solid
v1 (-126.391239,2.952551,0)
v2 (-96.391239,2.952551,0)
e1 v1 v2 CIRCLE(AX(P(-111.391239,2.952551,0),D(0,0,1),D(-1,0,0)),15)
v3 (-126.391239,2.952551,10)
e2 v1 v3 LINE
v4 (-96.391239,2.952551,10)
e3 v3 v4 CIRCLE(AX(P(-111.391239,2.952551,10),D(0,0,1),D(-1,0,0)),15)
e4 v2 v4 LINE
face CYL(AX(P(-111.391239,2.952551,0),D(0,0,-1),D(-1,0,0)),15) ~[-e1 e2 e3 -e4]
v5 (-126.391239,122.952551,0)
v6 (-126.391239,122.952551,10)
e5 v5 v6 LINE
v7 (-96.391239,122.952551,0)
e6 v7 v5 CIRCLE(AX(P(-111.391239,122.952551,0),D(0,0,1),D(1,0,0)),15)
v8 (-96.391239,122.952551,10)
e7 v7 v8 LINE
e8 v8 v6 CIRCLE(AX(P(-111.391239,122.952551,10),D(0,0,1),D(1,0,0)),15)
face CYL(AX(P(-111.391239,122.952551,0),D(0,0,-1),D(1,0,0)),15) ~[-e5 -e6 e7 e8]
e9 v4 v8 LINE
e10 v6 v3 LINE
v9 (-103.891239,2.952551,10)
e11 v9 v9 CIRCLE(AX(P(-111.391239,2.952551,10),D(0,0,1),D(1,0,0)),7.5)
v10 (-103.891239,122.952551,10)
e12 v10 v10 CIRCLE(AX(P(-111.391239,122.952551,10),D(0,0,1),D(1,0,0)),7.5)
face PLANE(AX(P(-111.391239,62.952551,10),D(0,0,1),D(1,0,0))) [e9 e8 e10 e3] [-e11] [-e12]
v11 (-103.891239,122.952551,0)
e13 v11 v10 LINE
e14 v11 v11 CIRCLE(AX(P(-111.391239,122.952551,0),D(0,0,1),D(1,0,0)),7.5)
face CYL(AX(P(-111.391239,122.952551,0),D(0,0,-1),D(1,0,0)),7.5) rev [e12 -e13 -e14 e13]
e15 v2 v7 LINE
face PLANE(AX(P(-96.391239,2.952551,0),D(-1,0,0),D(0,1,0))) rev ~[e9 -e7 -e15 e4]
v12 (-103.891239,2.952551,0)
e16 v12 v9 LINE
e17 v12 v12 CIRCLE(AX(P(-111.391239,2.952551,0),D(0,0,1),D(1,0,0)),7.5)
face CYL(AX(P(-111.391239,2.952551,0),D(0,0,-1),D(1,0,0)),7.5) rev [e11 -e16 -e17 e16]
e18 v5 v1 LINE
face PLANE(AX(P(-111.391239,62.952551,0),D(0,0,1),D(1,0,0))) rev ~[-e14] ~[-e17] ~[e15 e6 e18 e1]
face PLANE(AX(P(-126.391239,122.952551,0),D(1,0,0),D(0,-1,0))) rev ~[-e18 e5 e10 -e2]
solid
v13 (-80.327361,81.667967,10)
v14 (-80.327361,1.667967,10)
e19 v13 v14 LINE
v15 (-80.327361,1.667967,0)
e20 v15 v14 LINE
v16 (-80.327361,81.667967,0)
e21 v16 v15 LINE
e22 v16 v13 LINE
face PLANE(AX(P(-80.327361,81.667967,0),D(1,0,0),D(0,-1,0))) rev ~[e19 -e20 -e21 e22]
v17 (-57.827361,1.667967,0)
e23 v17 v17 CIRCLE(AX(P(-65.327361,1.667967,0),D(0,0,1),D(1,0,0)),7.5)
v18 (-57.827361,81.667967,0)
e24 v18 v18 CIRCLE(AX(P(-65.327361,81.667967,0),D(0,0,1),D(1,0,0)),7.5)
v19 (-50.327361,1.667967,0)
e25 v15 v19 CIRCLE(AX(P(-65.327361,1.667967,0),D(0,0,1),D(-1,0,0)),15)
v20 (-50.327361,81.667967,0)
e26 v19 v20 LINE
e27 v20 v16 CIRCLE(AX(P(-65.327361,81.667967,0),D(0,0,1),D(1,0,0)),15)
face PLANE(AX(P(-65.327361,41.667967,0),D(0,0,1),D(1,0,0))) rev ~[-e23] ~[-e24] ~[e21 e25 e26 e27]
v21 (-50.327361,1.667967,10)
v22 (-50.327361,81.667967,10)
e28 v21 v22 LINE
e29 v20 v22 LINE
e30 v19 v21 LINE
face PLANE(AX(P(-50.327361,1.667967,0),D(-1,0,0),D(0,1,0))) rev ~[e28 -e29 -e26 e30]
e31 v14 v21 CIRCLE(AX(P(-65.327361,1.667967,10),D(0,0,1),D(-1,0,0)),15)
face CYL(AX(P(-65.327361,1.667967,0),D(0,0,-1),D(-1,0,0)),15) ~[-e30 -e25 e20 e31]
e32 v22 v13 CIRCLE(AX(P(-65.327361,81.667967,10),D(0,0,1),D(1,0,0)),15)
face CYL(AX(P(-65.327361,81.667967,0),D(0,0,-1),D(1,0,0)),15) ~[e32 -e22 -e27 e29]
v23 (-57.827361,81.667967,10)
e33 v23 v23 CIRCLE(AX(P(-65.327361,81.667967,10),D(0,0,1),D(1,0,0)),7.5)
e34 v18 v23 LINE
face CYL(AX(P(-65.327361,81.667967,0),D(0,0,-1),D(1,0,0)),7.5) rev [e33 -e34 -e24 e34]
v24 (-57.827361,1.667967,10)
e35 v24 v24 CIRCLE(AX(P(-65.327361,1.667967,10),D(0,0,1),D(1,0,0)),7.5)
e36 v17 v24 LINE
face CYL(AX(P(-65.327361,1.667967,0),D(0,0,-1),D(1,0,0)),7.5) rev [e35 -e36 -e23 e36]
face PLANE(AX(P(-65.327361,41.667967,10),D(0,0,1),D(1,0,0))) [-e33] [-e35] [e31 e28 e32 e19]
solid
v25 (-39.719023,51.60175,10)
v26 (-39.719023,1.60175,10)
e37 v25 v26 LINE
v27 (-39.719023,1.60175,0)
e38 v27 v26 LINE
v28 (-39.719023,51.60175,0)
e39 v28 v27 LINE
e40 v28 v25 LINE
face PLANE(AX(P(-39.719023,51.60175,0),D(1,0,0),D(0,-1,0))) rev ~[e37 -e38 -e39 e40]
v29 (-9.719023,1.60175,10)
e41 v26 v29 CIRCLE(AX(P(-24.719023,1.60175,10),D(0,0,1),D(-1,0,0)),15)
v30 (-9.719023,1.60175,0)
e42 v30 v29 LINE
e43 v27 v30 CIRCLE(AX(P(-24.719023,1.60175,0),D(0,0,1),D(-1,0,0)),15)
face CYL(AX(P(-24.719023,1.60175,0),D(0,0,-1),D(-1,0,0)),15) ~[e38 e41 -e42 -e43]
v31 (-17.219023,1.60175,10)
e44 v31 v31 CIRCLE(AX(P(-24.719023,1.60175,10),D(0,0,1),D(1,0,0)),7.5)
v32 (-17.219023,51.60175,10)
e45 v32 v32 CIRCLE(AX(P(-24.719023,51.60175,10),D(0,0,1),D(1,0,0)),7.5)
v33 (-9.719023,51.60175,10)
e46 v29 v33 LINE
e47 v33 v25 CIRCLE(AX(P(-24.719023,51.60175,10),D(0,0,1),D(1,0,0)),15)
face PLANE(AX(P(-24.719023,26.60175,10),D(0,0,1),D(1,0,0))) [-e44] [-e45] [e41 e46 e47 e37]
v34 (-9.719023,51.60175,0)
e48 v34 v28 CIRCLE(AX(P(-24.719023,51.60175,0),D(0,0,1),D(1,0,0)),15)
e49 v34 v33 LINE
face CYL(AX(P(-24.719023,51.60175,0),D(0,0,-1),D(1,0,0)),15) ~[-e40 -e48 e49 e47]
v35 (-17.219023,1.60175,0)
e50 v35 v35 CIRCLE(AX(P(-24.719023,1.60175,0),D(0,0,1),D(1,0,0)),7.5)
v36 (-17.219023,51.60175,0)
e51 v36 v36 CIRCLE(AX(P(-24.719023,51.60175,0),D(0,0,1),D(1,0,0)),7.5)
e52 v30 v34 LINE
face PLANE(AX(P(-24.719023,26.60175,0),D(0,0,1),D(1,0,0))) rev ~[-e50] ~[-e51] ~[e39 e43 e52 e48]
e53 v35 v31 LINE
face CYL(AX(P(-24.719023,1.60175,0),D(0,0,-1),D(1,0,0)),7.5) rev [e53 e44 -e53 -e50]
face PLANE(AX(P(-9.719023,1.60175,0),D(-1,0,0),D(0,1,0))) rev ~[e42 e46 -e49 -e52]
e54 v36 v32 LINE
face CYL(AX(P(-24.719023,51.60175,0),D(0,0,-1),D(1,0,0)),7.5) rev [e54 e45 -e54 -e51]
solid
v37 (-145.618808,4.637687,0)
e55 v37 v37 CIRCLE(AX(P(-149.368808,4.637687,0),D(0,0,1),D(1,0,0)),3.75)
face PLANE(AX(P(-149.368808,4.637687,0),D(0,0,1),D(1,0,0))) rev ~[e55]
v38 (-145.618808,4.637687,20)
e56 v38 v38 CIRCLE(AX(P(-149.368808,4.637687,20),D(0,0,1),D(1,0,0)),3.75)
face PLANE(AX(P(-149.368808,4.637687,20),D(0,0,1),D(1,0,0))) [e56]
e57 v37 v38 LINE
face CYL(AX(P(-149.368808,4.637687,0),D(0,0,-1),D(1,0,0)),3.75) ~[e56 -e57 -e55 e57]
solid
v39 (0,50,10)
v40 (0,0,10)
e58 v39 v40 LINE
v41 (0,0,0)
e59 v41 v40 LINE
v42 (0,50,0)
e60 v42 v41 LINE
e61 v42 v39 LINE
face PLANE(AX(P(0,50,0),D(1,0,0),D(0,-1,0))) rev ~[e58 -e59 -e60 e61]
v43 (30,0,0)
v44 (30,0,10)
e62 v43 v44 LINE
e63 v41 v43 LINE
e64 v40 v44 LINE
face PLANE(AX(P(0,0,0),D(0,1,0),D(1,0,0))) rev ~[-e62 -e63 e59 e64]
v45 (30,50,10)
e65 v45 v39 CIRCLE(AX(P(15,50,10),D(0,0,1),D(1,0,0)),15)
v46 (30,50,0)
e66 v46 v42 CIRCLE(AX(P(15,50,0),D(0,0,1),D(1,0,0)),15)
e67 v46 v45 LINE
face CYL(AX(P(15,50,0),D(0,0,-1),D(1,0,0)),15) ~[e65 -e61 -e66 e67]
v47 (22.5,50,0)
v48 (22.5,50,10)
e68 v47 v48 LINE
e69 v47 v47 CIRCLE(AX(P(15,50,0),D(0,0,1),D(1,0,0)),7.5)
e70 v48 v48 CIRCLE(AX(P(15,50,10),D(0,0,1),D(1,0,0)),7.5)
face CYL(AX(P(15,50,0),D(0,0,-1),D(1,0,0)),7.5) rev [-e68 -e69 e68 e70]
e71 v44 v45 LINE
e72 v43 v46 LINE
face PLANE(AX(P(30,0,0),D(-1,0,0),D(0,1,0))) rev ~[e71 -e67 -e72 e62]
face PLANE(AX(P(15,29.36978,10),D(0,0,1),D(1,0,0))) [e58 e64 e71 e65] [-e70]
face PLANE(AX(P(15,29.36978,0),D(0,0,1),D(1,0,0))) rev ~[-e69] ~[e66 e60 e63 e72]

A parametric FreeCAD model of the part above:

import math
import FreeCAD as App
import Part
import Sketcher

doc = App.newDocument("Part")
body = doc.addObject("PartDesign::Body", "Body")

sketch1 = body.newObject("Sketcher::SketchObject", "Sketch")
sketch1.AttachmentSupport = (doc.getObject("XY_Plane"), [""])
sketch1.MapMode = "FlatFace"
sketch1.addGeometry([
    Part.LineSegment(App.Vector(0, 50, 0), App.Vector(0, 0, 0)),
    Part.LineSegment(App.Vector(0, 0, 0), App.Vector(30, 0, 0)),
    Part.LineSegment(App.Vector(30, 0, 0), App.Vector(30, 50, 0)),
    Part.ArcOfCircle(Part.Circle(App.Vector(15, 50, 0), App.Vector(0, 0, 1), 15), math.radians(0), math.radians(180)),
    Part.Circle(App.Vector(15, 50, 0), App.Vector(0, 0, 1), 7.5),
], False)
sketch1.addConstraint([
    Sketcher.Constraint("Coincident", 0, 2, 1, 1),
    Sketcher.Constraint("Coincident", 1, 2, 2, 1),
    Sketcher.Constraint("Tangent", 2, 2, 3, 1),
    Sketcher.Constraint("Tangent", 3, 2, 0, 1),
    Sketcher.Constraint("Vertical", 0),
    Sketcher.Constraint("Horizontal", 1),
    Sketcher.Constraint("Vertical", 2),
    Sketcher.Constraint("Coincident", 0, 2, -1, 1),
    Sketcher.Constraint("Coincident", 4, 3, 3, 3),
    Sketcher.Constraint("Diameter", 4, 15.0),
    Sketcher.Constraint("Radius", 3, 15.0),
    Sketcher.Constraint("DistanceY", 0, 2, 0, 1, 50.0),
])
pad1 = body.newObject("PartDesign::Pad", "Pad")
pad1.Profile = sketch1
pad1.Length = 10
body2 = doc.addObject("PartDesign::Body", "Body001")

sketch2 = body2.newObject("Sketcher::SketchObject", "Sketch001")
sketch2.AttachmentSupport = (doc.getObject("XY_Plane001"), [""])
sketch2.MapMode = "FlatFace"
sketch2.addGeometry([
    Part.LineSegment(App.Vector(-39.719023, 51.60175, 0), App.Vector(-39.719023, 1.60175, 0)),
    Part.ArcOfCircle(Part.Circle(App.Vector(-24.719023, 1.60175, 0), App.Vector(0, 0, 1), 15), math.radians(180), math.radians(360)),
    Part.LineSegment(App.Vector(-9.719023, 1.60175, 0), App.Vector(-9.719023, 51.60175, 0)),
    Part.ArcOfCircle(Part.Circle(App.Vector(-24.719023, 51.60175, 0), App.Vector(0, 0, 1), 15), math.radians(0), math.radians(180)),
    Part.Circle(App.Vector(-24.719023, 1.60175, 0), App.Vector(0, 0, 1), 7.5),
    Part.Circle(App.Vector(-24.719023, 51.60175, 0), App.Vector(0, 0, 1), 7.5),
], False)
sketch2.addConstraint([
    Sketcher.Constraint("Tangent", 0, 2, 1, 1),
    Sketcher.Constraint("Tangent", 1, 2, 2, 1),
    Sketcher.Constraint("Tangent", 2, 2, 3, 1),
    Sketcher.Constraint("Tangent", 3, 2, 0, 1),
    Sketcher.Constraint("Vertical", 0),
    Sketcher.Constraint("Vertical", 2),
    Sketcher.Constraint("Coincident", 4, 3, 1, 3),
    Sketcher.Constraint("Coincident", 5, 3, 3, 3),
    Sketcher.Constraint("Equal", 4, 5),
    Sketcher.Constraint("Diameter", 4, 15.0),
    Sketcher.Constraint("Radius", 1, 15.0),
    Sketcher.Constraint("DistanceY", 0, 2, 0, 1, 50.0),
    Sketcher.Constraint("DistanceY", -1, 1, 1, 3, 1.60175),
    Sketcher.Constraint("DistanceX", 1, 3, -1, 1, 24.719023),
])
pad2 = body2.newObject("PartDesign::Pad", "Pad001")
pad2.Profile = sketch2
pad2.Length = 10
body3 = doc.addObject("PartDesign::Body", "Body002")

sketch3 = body3.newObject("Sketcher::SketchObject", "Sketch002")
sketch3.AttachmentSupport = (doc.getObject("XY_Plane002"), [""])
sketch3.MapMode = "FlatFace"
sketch3.addGeometry([
    Part.LineSegment(App.Vector(-80.327361, 81.667967, 0), App.Vector(-80.327361, 1.667967, 0)),
    Part.ArcOfCircle(Part.Circle(App.Vector(-65.327361, 1.667967, 0), App.Vector(0, 0, 1), 15), math.radians(180), math.radians(360)),
    Part.LineSegment(App.Vector(-50.327361, 1.667967, 0), App.Vector(-50.327361, 81.667967, 0)),
    Part.ArcOfCircle(Part.Circle(App.Vector(-65.327361, 81.667967, 0), App.Vector(0, 0, 1), 15), math.radians(0), math.radians(180)),
    Part.Circle(App.Vector(-65.327361, 1.667967, 0), App.Vector(0, 0, 1), 7.5),
    Part.Circle(App.Vector(-65.327361, 81.667967, 0), App.Vector(0, 0, 1), 7.5),
], False)
sketch3.addConstraint([
    Sketcher.Constraint("Tangent", 0, 2, 1, 1),
    Sketcher.Constraint("Tangent", 1, 2, 2, 1),
    Sketcher.Constraint("Tangent", 2, 2, 3, 1),
    Sketcher.Constraint("Tangent", 3, 2, 0, 1),
    Sketcher.Constraint("Vertical", 0),
    Sketcher.Constraint("Vertical", 2),
    Sketcher.Constraint("Coincident", 4, 3, 1, 3),
    Sketcher.Constraint("Coincident", 5, 3, 3, 3),
    Sketcher.Constraint("Equal", 4, 5),
    Sketcher.Constraint("Diameter", 4, 15.0),
    Sketcher.Constraint("Radius", 1, 15.0),
    Sketcher.Constraint("DistanceY", 0, 2, 0, 1, 80.0),
    Sketcher.Constraint("DistanceX", 1, 3, -1, 1, 65.327361),
    Sketcher.Constraint("DistanceY", -1, 1, 1, 3, 1.667967),
])
pad3 = body3.newObject("PartDesign::Pad", "Pad002")
pad3.Profile = sketch3
pad3.Length = 10
body4 = doc.addObject("PartDesign::Body", "Body003")

sketch4 = body4.newObject("Sketcher::SketchObject", "Sketch003")
sketch4.AttachmentSupport = (doc.getObject("XY_Plane003"), [""])
sketch4.MapMode = "FlatFace"
sketch4.addGeometry([
    Part.LineSegment(App.Vector(-126.391239, 122.952551, 0), App.Vector(-126.391239, 2.952551, 0)),
    Part.ArcOfCircle(Part.Circle(App.Vector(-111.391239, 2.952551, 0), App.Vector(0, 0, 1), 15), math.radians(180), math.radians(360)),
    Part.LineSegment(App.Vector(-96.391239, 2.952551, 0), App.Vector(-96.391239, 122.952551, 0)),
    Part.ArcOfCircle(Part.Circle(App.Vector(-111.391239, 122.952551, 0), App.Vector(0, 0, 1), 15), math.radians(0), math.radians(180)),
    Part.Circle(App.Vector(-111.391239, 2.952551, 0), App.Vector(0, 0, 1), 7.5),
    Part.Circle(App.Vector(-111.391239, 122.952551, 0), App.Vector(0, 0, 1), 7.5),
], False)
sketch4.addConstraint([
    Sketcher.Constraint("Tangent", 0, 2, 1, 1),
    Sketcher.Constraint("Tangent", 1, 2, 2, 1),
    Sketcher.Constraint("Tangent", 2, 2, 3, 1),
    Sketcher.Constraint("Tangent", 3, 2, 0, 1),
    Sketcher.Constraint("Vertical", 0),
    Sketcher.Constraint("Vertical", 2),
    Sketcher.Constraint("Coincident", 4, 3, 1, 3),
    Sketcher.Constraint("Coincident", 5, 3, 3, 3),
    Sketcher.Constraint("Equal", 4, 5),
    Sketcher.Constraint("Diameter", 4, 15.0),
    Sketcher.Constraint("Radius", 1, 15.0),
    Sketcher.Constraint("DistanceY", 0, 2, 0, 1, 120.0),
    Sketcher.Constraint("DistanceX", 1, 3, -1, 1, 111.391239),
    Sketcher.Constraint("DistanceY", -1, 1, 1, 3, 2.952551),
])
pad4 = body4.newObject("PartDesign::Pad", "Pad003")
pad4.Profile = sketch4
pad4.Length = 10
body5 = doc.addObject("PartDesign::Body", "Body004")

sketch5 = body5.newObject("Sketcher::SketchObject", "Sketch004")
sketch5.AttachmentSupport = (doc.getObject("XY_Plane004"), [""])
sketch5.MapMode = "FlatFace"
sketch5.addGeometry(Part.Circle(App.Vector(-149.368808, 4.637687, 0), App.Vector(0, 0, 1), 3.75), False)
sketch5.addConstraint([
    Sketcher.Constraint("Diameter", 0, 7.5),
    Sketcher.Constraint("DistanceX", 0, 3, -1, 1, 149.368808),
    Sketcher.Constraint("DistanceY", -1, 1, 0, 3, 4.637687),
])
pad5 = body5.newObject("PartDesign::Pad", "Pad004")
pad5.Profile = sketch5
pad5.Length = 20

doc.recompute()
